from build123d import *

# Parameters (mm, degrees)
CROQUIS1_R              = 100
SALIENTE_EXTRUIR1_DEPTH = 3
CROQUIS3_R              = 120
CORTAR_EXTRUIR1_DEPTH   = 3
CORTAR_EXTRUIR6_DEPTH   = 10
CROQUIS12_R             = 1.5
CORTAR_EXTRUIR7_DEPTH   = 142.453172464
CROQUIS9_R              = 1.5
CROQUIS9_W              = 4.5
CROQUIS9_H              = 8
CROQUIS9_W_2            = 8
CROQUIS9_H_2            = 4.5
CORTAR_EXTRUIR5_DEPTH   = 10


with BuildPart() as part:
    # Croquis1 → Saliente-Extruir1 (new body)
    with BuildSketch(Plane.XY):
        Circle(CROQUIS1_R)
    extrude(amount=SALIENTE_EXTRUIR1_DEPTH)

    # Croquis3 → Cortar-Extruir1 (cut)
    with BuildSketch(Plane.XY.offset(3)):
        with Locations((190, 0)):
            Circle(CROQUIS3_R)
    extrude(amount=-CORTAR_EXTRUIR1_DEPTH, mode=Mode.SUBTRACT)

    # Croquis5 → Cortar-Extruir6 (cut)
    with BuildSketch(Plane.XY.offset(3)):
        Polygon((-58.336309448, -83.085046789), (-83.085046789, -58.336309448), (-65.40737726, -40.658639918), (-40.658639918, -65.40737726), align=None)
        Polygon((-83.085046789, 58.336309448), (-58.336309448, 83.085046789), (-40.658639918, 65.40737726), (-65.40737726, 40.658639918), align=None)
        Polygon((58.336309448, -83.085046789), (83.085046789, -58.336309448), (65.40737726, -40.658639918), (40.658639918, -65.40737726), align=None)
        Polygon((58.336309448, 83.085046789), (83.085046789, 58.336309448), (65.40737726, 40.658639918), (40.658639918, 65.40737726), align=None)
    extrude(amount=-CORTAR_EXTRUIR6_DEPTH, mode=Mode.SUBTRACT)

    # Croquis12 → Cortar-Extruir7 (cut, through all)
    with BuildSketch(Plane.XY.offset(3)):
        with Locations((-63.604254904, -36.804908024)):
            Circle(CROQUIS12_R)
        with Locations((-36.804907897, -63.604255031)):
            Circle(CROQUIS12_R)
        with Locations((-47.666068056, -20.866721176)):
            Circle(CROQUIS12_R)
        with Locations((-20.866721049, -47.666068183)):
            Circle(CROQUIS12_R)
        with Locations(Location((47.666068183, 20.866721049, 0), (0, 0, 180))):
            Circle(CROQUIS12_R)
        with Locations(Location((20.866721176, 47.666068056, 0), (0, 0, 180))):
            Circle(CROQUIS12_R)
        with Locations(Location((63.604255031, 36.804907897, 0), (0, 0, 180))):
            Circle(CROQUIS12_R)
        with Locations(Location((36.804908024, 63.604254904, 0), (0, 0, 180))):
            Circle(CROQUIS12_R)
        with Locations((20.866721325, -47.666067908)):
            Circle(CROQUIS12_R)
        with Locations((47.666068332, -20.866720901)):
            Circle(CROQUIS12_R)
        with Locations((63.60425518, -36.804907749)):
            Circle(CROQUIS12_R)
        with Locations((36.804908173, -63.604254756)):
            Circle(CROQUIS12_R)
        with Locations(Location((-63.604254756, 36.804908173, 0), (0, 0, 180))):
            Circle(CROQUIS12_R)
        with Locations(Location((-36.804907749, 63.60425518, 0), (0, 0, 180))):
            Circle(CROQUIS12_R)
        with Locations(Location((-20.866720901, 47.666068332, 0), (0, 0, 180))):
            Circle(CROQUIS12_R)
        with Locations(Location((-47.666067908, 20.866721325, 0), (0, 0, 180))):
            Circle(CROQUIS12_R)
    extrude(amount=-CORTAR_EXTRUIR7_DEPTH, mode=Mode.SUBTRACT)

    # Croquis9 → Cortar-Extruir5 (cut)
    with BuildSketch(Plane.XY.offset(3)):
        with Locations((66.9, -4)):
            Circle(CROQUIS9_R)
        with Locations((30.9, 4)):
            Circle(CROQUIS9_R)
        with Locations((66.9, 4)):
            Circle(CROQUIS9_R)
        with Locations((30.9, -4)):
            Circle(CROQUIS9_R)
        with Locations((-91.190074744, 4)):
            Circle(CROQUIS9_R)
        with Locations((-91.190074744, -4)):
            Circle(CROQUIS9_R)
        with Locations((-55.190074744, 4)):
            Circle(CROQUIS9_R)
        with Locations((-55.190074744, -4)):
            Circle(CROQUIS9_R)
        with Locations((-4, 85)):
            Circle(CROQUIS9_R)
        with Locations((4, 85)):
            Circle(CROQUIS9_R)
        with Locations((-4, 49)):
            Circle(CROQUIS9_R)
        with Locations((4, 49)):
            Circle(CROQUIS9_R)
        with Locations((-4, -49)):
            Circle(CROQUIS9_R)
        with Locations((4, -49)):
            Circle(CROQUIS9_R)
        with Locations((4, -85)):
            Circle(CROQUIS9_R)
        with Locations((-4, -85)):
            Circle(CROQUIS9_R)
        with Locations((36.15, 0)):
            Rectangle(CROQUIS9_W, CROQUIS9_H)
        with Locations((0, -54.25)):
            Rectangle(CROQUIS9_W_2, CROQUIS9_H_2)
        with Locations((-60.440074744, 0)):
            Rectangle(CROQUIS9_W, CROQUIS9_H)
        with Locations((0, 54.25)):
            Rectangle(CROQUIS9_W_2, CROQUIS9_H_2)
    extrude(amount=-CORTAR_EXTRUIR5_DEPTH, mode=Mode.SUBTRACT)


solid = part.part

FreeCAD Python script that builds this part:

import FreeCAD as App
import Part
import Sketcher

V = App.Vector


def add_polygon(sketch, points):
    """Adds a closed chain of lines whose ends are joined by coincident constraints."""
    first, n = sketch.GeometryCount, len(points)
    for a, b in zip(points, points[1:] + points[:1]):
        sketch.addGeometry(Part.LineSegment(App.Vector(*a, 0), App.Vector(*b, 0)), False)
    for i in range(n):
        sketch.addConstraint(Sketcher.Constraint("Coincident", first + i, 2, first + (i + 1) % n, 1))

doc = App.newDocument("Part")
body = doc.addObject("PartDesign::Body", "Body")

# Sketch on XY plane
sketch1 = body.newObject("Sketcher::SketchObject", "Sketch")
sketch1.AttachmentSupport = (doc.getObject("XY_Plane"), [""])
sketch1.MapMode = "FlatFace"
sketch1.addGeometry(Part.Circle(V(0, 0, 0), V(0, 0, 1), 100), False)
sketch1.addConstraint([
    Sketcher.Constraint("Coincident", 0, 3, -1, 1),
    Sketcher.Constraint("Diameter", 0, 200.0),
])
pad1 = body.newObject("PartDesign::Pad", "Pad")
pad1.Profile = sketch1
pad1.Length = 3

# Sketch on XY plane
sketch2 = body.newObject("Sketcher::SketchObject", "Sketch001")
sketch2.AttachmentSupport = (doc.getObject("XY_Plane"), [""])
sketch2.MapMode = "FlatFace"
sketch2.AttachmentOffset = App.Placement(V(0, 0, 3), App.Rotation())
sketch2.addGeometry(Part.Circle(V(190, 0, 0), V(0, 0, 1), 120), False)
sketch2.addConstraint([
    Sketcher.Constraint("PointOnObject", 0, 3, -1),
    Sketcher.Constraint("Diameter", 0, 240.0),
    Sketcher.Constraint("DistanceX", -1, 1, 0, 3, 190.0),
])
pocket1 = body.newObject("PartDesign::Pocket", "Pocket")
pocket1.Profile = sketch2
pocket1.Length = 3

# Sketch on XY plane
sketch3 = body.newObject("Sketcher::SketchObject", "Sketch002")
sketch3.AttachmentSupport = (doc.getObject("XY_Plane"), [""])
sketch3.MapMode = "FlatFace"
sketch3.AttachmentOffset = App.Placement(V(0, 0, 3), App.Rotation())
add_polygon(sketch3, [(-83.085047, -58.336309), (-58.336309, -83.085047), (-40.65864, -65.407377), (-65.407377, -40.65864)])  # lines 0-3
add_polygon(sketch3, [(-58.336309, 83.085047), (-83.085047, 58.336309), (-65.407377, 40.65864), (-40.65864, 65.407377)])  # lines 4-7
add_polygon(sketch3, [(58.336309, -83.085047), (83.085047, -58.336309), (65.407377, -40.65864), (40.65864, -65.407377)])  # lines 8-11
add_polygon(sketch3, [(83.085047, 58.336309), (58.336309, 83.085047), (40.65864, 65.407377), (65.407377, 40.65864)])  # lines 12-15
sketch3.addConstraint([
    Sketcher.Constraint("Symmetric", 4, 2, 8, 2, -1, 1),
    Sketcher.Constraint("Symmetric", 5, 2, 9, 2, -1, 1),
    Sketcher.Constraint("Symmetric", 6, 2, 10, 2, -1, 1),
    Sketcher.Constraint("Symmetric", 7, 2, 11, 2, -1, 1),
    Sketcher.Constraint("Symmetric", 0, 2, 12, 2, -1, 1),
    Sketcher.Constraint("Symmetric", 1, 2, 13, 2, -1, 1),
    Sketcher.Constraint("Symmetric", 2, 2, 14, 2, -1, 1),
    Sketcher.Constraint("Symmetric", 3, 2, 15, 2, -1, 1),
    Sketcher.Constraint("Symmetric", 3, 2, 8, 2, -2),
    Sketcher.Constraint("Symmetric", 2, 2, 9, 2, -2),
    Sketcher.Constraint("Symmetric", 1, 2, 10, 2, -2),
    Sketcher.Constraint("Symmetric", 0, 2, 11, 2, -2),
    Sketcher.Constraint("Perpendicular", 0, 1),
    Sketcher.Constraint("Perpendicular", 1, 2),
    Sketcher.Constraint("Perpendicular", 2, 3),
    Sketcher.Constraint("Parallel", 3, 4),
    Sketcher.Constraint("Distance", 0, 35.0),
    Sketcher.Constraint("Distance", 1, 25.0),
    Sketcher.Constraint("DistanceX", 0, 2, -1, 1, 58.336309),
    Sketcher.Constraint("DistanceY", 2, 2, -1, 1, 40.65864),
])
pocket2 = body.newObject("PartDesign::Pocket", "Pocket001")
pocket2.Profile = sketch3
pocket2.Length = 10

# Sketch on XY plane
sketch4 = body.newObject("Sketcher::SketchObject", "Sketch003")
sketch4.AttachmentSupport = (doc.getObject("XY_Plane"), [""])
sketch4.MapMode = "FlatFace"
sketch4.AttachmentOffset = App.Placement(V(0, 0, 3), App.Rotation())
sketch4.addGeometry([
    Part.Circle(V(-63.604255, -36.804908, 0), V(0, 0, 1), 1.5),  # 0
    Part.Circle(V(-36.804908, -63.604255, 0), V(0, 0, 1), 1.5),  # 1
    Part.Circle(V(-47.666068, -20.866721, 0), V(0, 0, 1), 1.5),  # 2
    Part.Circle(V(-20.866721, -47.666068, 0), V(0, 0, 1), 1.5),  # 3
    Part.Circle(V(47.666068, 20.866721, 0), V(0, 0, 1), 1.5),  # 4
    Part.Circle(V(20.866721, 47.666068, 0), V(0, 0, 1), 1.5),  # 5
    Part.Circle(V(63.604255, 36.804908, 0), V(0, 0, 1), 1.5),  # 6
    Part.Circle(V(36.804908, 63.604255, 0), V(0, 0, 1), 1.5),  # 7
    Part.Circle(V(20.866721, -47.666068, 0), V(0, 0, 1), 1.5),  # 8
    Part.Circle(V(47.666068, -20.866721, 0), V(0, 0, 1), 1.5),  # 9
    Part.Circle(V(63.604255, -36.804908, 0), V(0, 0, 1), 1.5),  # 10
    Part.Circle(V(36.804908, -63.604255, 0), V(0, 0, 1), 1.5),  # 11
    Part.Circle(V(-63.604255, 36.804908, 0), V(0, 0, 1), 1.5),  # 12
    Part.Circle(V(-36.804908, 63.604255, 0), V(0, 0, 1), 1.5),  # 13
    Part.Circle(V(-20.866721, 47.666068, 0), V(0, 0, 1), 1.5),  # 14
    Part.Circle(V(-47.666068, 20.866721, 0), V(0, 0, 1), 1.5),  # 15
], False)
sketch4.addConstraint([
    Sketcher.Constraint("Equal", 0, 1),
    Sketcher.Constraint("Equal", 1, 2),
    Sketcher.Constraint("Equal", 2, 3),
    Sketcher.Constraint("Equal", 3, 4),
    Sketcher.Constraint("Equal", 4, 5),
    Sketcher.Constraint("Equal", 5, 6),
    Sketcher.Constraint("Equal", 6, 7),
    Sketcher.Constraint("Equal", 7, 8),
    Sketcher.Constraint("Equal", 8, 9),
    Sketcher.Constraint("Equal", 9, 10),
    Sketcher.Constraint("Equal", 10, 11),
    Sketcher.Constraint("Equal", 11, 12),
    Sketcher.Constraint("Equal", 12, 13),
    Sketcher.Constraint("Equal", 13, 14),
    Sketcher.Constraint("Equal", 14, 15),
    Sketcher.Constraint("Symmetric", 2, 3, 4, 3, -1, 1),
    Sketcher.Constraint("Symmetric", 3, 3, 5, 3, -1, 1),
    Sketcher.Constraint("Symmetric", 0, 3, 6, 3, -1, 1),
    Sketcher.Constraint("Symmetric", 1, 3, 7, 3, -1, 1),
    Sketcher.Constraint("Symmetric", 10, 3, 12, 3, -1, 1),
    Sketcher.Constraint("Symmetric", 11, 3, 13, 3, -1, 1),
    Sketcher.Constraint("Symmetric", 8, 3, 14, 3, -1, 1),
    Sketcher.Constraint("Symmetric", 9, 3, 15, 3, -1, 1),
    Sketcher.Constraint("Symmetric", 3, 3, 8, 3, -2),
    Sketcher.Constraint("Symmetric", 2, 3, 9, 3, -2),
    Sketcher.Constraint("Symmetric", 0, 3, 10, 3, -2),
    Sketcher.Constraint("Symmetric", 1, 3, 11, 3, -2),
    Sketcher.Constraint("Diameter", 0, 3.0),
    Sketcher.Constraint("DistanceY", 0, 3, -1, 1, 36.804908),
    Sketcher.Constraint("DistanceX", 2, 3, -1, 1, 47.666068),
    Sketcher.Constraint("DistanceY", 2, 3, -1, 1, 20.866721),
    Sketcher.Constraint("DistanceX", 3, 3, -1, 1, 20.866721),
    Sketcher.Constraint("DistanceY", 3, 3, -1, 1, 47.666068),
    Sketcher.Constraint("DistanceX", -1, 1, 7, 3, 36.804908),
    Sketcher.Constraint("DistanceX", 0, 3, -1, 1, 63.604255),
    Sketcher.Constraint("DistanceY", 1, 3, -1, 1, 63.604255),
])
pocket3 = body.newObject("PartDesign::Pocket", "Pocket002")
pocket3.Profile = sketch4
pocket3.Type = "ThroughAll"

# Sketch on XY plane
sketch5 = body.newObject("Sketcher::SketchObject", "Sketch004")
sketch5.AttachmentSupport = (doc.getObject("XY_Plane"), [""])
sketch5.MapMode = "FlatFace"
sketch5.AttachmentOffset = App.Placement(V(0, 0, 3), App.Rotation())
sketch5.addGeometry(Part.Circle(V(66.9, -4, 0), V(0, 0, 1), 1.5), False)  # 0
sketch5.addGeometry(Part.Circle(V(30.9, 4, 0), V(0, 0, 1), 1.5), False)  # 1
sketch5.addGeometry(Part.Circle(V(66.9, 4, 0), V(0, 0, 1), 1.5), False)  # 2
sketch5.addGeometry(Part.Circle(V(30.9, -4, 0), V(0, 0, 1), 1.5), False)  # 3
sketch5.addGeometry(Part.Circle(V(-91.190075, 4, 0), V(0, 0, 1), 1.5), False)  # 4
sketch5.addGeometry(Part.Circle(V(-91.190075, -4, 0), V(0, 0, 1), 1.5), False)  # 5
sketch5.addGeometry(Part.Circle(V(-55.190075, 4, 0), V(0, 0, 1), 1.5), False)  # 6
sketch5.addGeometry(Part.Circle(V(-55.190075, -4, 0), V(0, 0, 1), 1.5), False)  # 7
sketch5.addGeometry(Part.Circle(V(-4, 85, 0), V(0, 0, 1), 1.5), False)  # 8
sketch5.addGeometry(Part.Circle(V(4, 85, 0), V(0, 0, 1), 1.5), False)  # 9
sketch5.addGeometry(Part.Circle(V(-4, 49, 0), V(0, 0, 1), 1.5), False)  # 10
sketch5.addGeometry(Part.Circle(V(4, 49, 0), V(0, 0, 1), 1.5), False)  # 11
sketch5.addGeometry(Part.Circle(V(-4, -49, 0), V(0, 0, 1), 1.5), False)  # 12
sketch5.addGeometry(Part.Circle(V(4, -49, 0), V(0, 0, 1), 1.5), False)  # 13
sketch5.addGeometry(Part.Circle(V(4, -85, 0), V(0, 0, 1), 1.5), False)  # 14
sketch5.addGeometry(Part.Circle(V(-4, -85, 0), V(0, 0, 1), 1.5), False)  # 15
add_polygon(sketch5, [(33.9, 4), (33.9, -4), (38.4, -4), (38.4, 4)])  # lines 16-19
add_polygon(sketch5, [(-4, -52), (-4, -56.5), (4, -56.5), (4, -52)])  # lines 20-23
add_polygon(sketch5, [(-62.690075, 4), (-62.690075, -4), (-58.190075, -4), (-58.190075, 4)])  # lines 24-27
add_polygon(sketch5, [(-4, 56.5), (-4, 52), (4, 52), (4, 56.5)])  # lines 28-31
sketch5.addConstraint([
    Sketcher.Constraint("Vertical", 16),
    Sketcher.Constraint("Horizontal", 17),
    Sketcher.Constraint("Vertical", 18),
    Sketcher.Constraint("Horizontal", 19),
    Sketcher.Constraint("Vertical", 20),
    Sketcher.Constraint("Horizontal", 21),
    Sketcher.Constraint("Vertical", 22),
    Sketcher.Constraint("Horizontal", 23),
    Sketcher.Constraint("Vertical", 24),
    Sketcher.Constraint("Horizontal", 25),
    Sketcher.Constraint("Vertical", 26),
    Sketcher.Constraint("Horizontal", 27),
    Sketcher.Constraint("Vertical", 28),
    Sketcher.Constraint("Horizontal", 29),
    Sketcher.Constraint("Vertical", 30),
    Sketcher.Constraint("Horizontal", 31),
    Sketcher.Constraint("Equal", 0, 1),
    Sketcher.Constraint("Equal", 1, 2),
    Sketcher.Constraint("Equal", 2, 3),
    Sketcher.Constraint("Equal", 3, 4),
    Sketcher.Constraint("Equal", 4, 5),
    Sketcher.Constraint("Equal", 5, 6),
    Sketcher.Constraint("Equal", 6, 7),
    Sketcher.Constraint("Equal", 7, 8),
    Sketcher.Constraint("Equal", 8, 9),
    Sketcher.Constraint("Equal", 9, 10),
    Sketcher.Constraint("Equal", 10, 11),
    Sketcher.Constraint("Equal", 11, 12),
    Sketcher.Constraint("Equal", 12, 13),
    Sketcher.Constraint("Equal", 13, 14),
    Sketcher.Constraint("Equal", 14, 15),
    Sketcher.Constraint("Symmetric", 11, 3, 12, 3, -1, 1),
    Sketcher.Constraint("Symmetric", 10, 3, 13, 3, -1, 1),
    Sketcher.Constraint("Symmetric", 8, 3, 14, 3, -1, 1),
    Sketcher.Constraint("Symmetric", 9, 3, 15, 3, -1, 1),
    Sketcher.Constraint("Symmetric", 22, 2, 28, 2, -1, 1),
    Sketcher.Constraint("Symmetric", 20, 2, 30, 2, -1, 1),
    Sketcher.Constraint("Symmetric", 8, 3, 9, 3, -2),
    Sketcher.Constraint("Symmetric", 10, 3, 11, 3, -2),
    Sketcher.Constraint("Symmetric", 0, 3, 2, 3, -1),
    Sketcher.Constraint("Symmetric", 1, 3, 3, 3, -1),
    Sketcher.Constraint("Symmetric", 4, 3, 5, 3, -1),
    Sketcher.Constraint("Symmetric", 6, 3, 7, 3, -1),
    Sketcher.Constraint("Horizontal", 1, 3, 2, 3),
    Sketcher.Constraint("Horizontal", 2, 3, 4, 3),
    Sketcher.Constraint("Horizontal", 4, 3, 6, 3),
    Sketcher.Constraint("Horizontal", 7, 3, 16, 2),
    Sketcher.Constraint("Horizontal", 6, 3, 18, 2),
    Sketcher.Constraint("Horizontal", 17, 2, 24, 2),
    Sketcher.Constraint("Horizontal", 19, 2, 26, 2),
    Sketcher.Constraint("Vertical", 8, 3, 10, 3),
    Sketcher.Constraint("Vertical", 15, 3, 20, 2),
    Sketcher.Constraint("Vertical", 14, 3, 21, 2),
    Sketcher.Constraint("Equal", 19, 25),
    Sketcher.Constraint("Equal", 31, 16),
    Sketcher.Constraint("Equal", 27, 20),
    Sketcher.Constraint("Diameter", 0, 3.0),
    Sketcher.Constraint("DistanceX", 21, 1, 21, 2, 8.0),
    Sketcher.Constraint("DistanceX", 17, 1, 17, 2, 4.5),
    Sketcher.Constraint("DistanceY", -1, 1, 8, 3, 85.0),
    Sketcher.Constraint("DistanceY", -1, 1, 10, 3, 49.0),
    Sketcher.Constraint("DistanceY", 22, 2, -1, 1, 52.0),
    Sketcher.Constraint("DistanceX", 1, 3, 0, 3, 36.0),
    Sketcher.Constraint("DistanceX", 4, 3, 6, 3, 36.0),
    Sketcher.Constraint("DistanceX", 3, 3, 16, 2, 3.0),
    Sketcher.Constraint("DistanceX", 25, 2, 7, 3, 3.0),
    Sketcher.Constraint("DistanceX", -1, 1, 0, 3, 66.9),
    Sketcher.Constraint("DistanceX", 4, 3, -1, 1, 91.190075),
])
pocket4 = body.newObject("PartDesign::Pocket", "Pocket003")
pocket4.Profile = sketch5
pocket4.Length = 10

doc.recompute()
